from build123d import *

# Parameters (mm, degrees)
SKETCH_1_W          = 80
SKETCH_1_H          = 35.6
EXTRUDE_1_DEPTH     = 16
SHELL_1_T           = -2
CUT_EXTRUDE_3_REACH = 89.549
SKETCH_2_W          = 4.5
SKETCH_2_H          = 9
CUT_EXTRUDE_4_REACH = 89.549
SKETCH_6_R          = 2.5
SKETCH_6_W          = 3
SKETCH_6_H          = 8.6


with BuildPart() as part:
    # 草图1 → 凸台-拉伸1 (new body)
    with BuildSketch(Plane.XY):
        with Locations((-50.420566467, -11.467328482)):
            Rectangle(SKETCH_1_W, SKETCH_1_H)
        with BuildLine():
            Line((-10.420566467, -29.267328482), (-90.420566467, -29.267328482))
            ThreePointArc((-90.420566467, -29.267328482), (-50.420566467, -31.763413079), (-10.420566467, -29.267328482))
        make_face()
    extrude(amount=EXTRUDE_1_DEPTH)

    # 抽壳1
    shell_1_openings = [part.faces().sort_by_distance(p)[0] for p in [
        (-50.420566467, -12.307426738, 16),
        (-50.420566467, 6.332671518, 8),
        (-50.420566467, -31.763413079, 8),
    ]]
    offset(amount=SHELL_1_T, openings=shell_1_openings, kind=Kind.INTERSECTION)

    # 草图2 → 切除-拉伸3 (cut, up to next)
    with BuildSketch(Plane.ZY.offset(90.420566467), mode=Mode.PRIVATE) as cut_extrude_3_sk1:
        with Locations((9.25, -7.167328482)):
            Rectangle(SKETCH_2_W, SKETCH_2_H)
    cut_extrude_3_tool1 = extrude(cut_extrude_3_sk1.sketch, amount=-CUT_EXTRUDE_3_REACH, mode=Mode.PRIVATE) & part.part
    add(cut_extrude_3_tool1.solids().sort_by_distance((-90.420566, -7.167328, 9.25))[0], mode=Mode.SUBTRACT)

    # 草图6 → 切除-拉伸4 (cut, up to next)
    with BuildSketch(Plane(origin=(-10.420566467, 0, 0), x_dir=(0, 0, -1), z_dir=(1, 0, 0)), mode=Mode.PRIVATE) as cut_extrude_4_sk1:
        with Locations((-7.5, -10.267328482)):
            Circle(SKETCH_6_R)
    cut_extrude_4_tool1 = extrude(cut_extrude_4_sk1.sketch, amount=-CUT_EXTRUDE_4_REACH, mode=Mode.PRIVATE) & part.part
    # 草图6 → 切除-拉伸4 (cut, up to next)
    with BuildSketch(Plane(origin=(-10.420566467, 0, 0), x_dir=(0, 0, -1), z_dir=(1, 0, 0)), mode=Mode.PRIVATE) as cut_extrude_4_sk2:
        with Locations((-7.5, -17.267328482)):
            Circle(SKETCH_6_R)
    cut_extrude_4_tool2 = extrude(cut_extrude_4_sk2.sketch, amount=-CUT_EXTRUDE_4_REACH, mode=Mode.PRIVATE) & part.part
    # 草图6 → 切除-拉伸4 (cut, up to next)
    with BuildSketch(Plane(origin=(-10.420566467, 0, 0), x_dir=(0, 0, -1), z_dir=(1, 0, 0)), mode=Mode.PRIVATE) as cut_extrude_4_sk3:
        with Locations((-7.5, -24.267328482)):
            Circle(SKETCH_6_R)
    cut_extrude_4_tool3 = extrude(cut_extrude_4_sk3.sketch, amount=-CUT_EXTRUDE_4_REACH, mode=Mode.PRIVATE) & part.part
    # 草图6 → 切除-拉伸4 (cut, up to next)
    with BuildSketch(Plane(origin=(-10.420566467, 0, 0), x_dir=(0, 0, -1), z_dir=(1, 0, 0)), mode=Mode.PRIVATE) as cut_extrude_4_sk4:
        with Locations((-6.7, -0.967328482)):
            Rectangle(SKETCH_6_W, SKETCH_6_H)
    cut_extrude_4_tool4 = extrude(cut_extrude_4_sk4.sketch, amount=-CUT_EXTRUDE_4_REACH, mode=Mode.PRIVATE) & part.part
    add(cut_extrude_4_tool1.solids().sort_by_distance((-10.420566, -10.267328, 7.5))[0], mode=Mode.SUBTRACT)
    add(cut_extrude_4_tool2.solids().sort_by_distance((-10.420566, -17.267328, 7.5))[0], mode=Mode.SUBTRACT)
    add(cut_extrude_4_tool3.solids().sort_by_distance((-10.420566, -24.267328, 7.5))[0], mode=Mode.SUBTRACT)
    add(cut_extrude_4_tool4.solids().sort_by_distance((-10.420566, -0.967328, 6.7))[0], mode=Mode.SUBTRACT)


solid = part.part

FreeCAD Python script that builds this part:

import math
import FreeCAD as App
import Part
import Sketcher
Q = App.Units.Quantity


def faces_at(feature, points):
    """Names of the faces that lie closest to the given points."""
    faces = feature.Shape.Faces
    near = lambda p: min(range(len(faces)), key=lambda i: faces[i].distToShape(Part.Vertex(*p))[0])
    return sorted({f"Face{near(p) + 1}" for p in points})

doc = App.newDocument("Part")
body = doc.addObject("PartDesign::Body", "Body")

# Sketch on XY plane
sketch1 = doc.addObject("Sketcher::SketchObject", "Sketch")
body.addObject(sketch1)
sketch1.AttachmentSupport = (doc.XY_Plane, [""])
sketch1.MapMode = "FlatFace"
sketch1.addGeometry([
    Part.LineSegment(App.Vector(-90.420566, 6.332672, 0), App.Vector(-90.420566, -29.267328, 0)),
    Part.ArcOfCircle(Part.Circle(App.Vector(-50.420566, 289.986587, 0), App.Vector(0, 0, 1), 321.75), math.radians(-97.141496), math.radians(-82.858504)),
    Part.LineSegment(App.Vector(-10.420566, -29.267328, 0), App.Vector(-10.420566, 6.332672, 0)),
    Part.LineSegment(App.Vector(-10.420566, 6.332672, 0), App.Vector(-90.420566, 6.332672, 0)),
], False)
sketch1.addConstraint([
    Sketcher.Constraint("Coincident", 0, 2, 1, 1),
    Sketcher.Constraint("Coincident", 1, 2, 2, 1),
    Sketcher.Constraint("Coincident", 2, 2, 3, 1),
    Sketcher.Constraint("Coincident", 3, 2, 0, 1),
    Sketcher.Constraint("Vertical", 0),
    Sketcher.Constraint("Vertical", 2),
    Sketcher.Constraint("Horizontal", 3),
    Sketcher.Constraint("Horizontal", 0, 2, 1, 2),
    Sketcher.Constraint("DistanceX", 3, 2, 3, 1, Q("80 mm")),
    Sketcher.Constraint("Radius", 1, Q("321.75 mm")),
    Sketcher.Constraint("DistanceY", 0, 2, 0, 1, Q("35.6 mm")),
    Sketcher.Constraint("DistanceY", 0, 2, -1, 1, Q("29.267328 mm")),
    Sketcher.Constraint("DistanceX", 1, 3, -1, 1, Q("50.420566 mm")),
])
pad1 = doc.addObject("PartDesign::Pad", "Pad")
body.addObject(pad1)
pad1.Profile = sketch1
pad1.Length = 16
doc.recompute()

thickness = doc.addObject("PartDesign::Thickness", "Thickness")
body.addObject(thickness)
thickness.Base = (pad1, faces_at(pad1, [(-50.421, -12.715, 16), (-50.421, 6.333, 8), (-50.421, -31.763, 8)]))
thickness.Value = 2
thickness.Reversed = True
thickness.Join = "Intersection"

# Sketch on YZ plane
sketch2 = doc.addObject("Sketcher::SketchObject", "Sketch001")
body.addObject(sketch2)
sketch2.AttachmentSupport = (doc.YZ_Plane, [""])
sketch2.MapMode = "FlatFace"
sketch2.AttachmentOffset = App.Placement(App.Vector(0, 0, -90.420566), App.Rotation())
sketch2.addGeometry([
    Part.LineSegment(App.Vector(-2.667328, 7, 0), App.Vector(-11.667328, 7, 0)),
    Part.LineSegment(App.Vector(-11.667328, 7, 0), App.Vector(-11.667328, 11.5, 0)),
    Part.LineSegment(App.Vector(-11.667328, 11.5, 0), App.Vector(-2.667328, 11.5, 0)),
    Part.LineSegment(App.Vector(-2.667328, 11.5, 0), App.Vector(-2.667328, 7, 0)),
], False)
sketch2.addConstraint([
    Sketcher.Constraint("Coincident", 0, 2, 1, 1),
    Sketcher.Constraint("Coincident", 1, 2, 2, 1),
    Sketcher.Constraint("Coincident", 2, 2, 3, 1),
    Sketcher.Constraint("Coincident", 3, 2, 0, 1),
    Sketcher.Constraint("Horizontal", 0),
    Sketcher.Constraint("Vertical", 1),
    Sketcher.Constraint("Horizontal", 2),
    Sketcher.Constraint("Vertical", 3),
    Sketcher.Constraint("DistanceX", 0, 2, 0, 1, Q("9 mm")),
    Sketcher.Constraint("DistanceY", 1, 1, 1, 2, Q("4.5 mm")),
    Sketcher.Constraint("DistanceY", -1, 1, 0, 2, Q("7 mm")),
    Sketcher.Constraint("DistanceX", 0, 2, -1, 1, Q("11.667328 mm")),
])
pocket1 = doc.addObject("PartDesign::Pocket", "Pocket")
body.addObject(pocket1)
pocket1.Profile = sketch2
pocket1.Type = "UpToFirst"
pocket1.Reversed = True

# Sketch on YZ plane
sketch3 = doc.addObject("Sketcher::SketchObject", "Sketch002")
body.addObject(sketch3)
sketch3.AttachmentSupport = (doc.YZ_Plane, [""])
sketch3.MapMode = "FlatFace"
sketch3.AttachmentOffset = App.Placement(App.Vector(0, 0, -10.420566), App.Rotation())
sketch3.addGeometry(Part.Circle(App.Vector(-10.267328, 7.5, 0), App.Vector(0, 0, 1), 2.5), False)
sketch3.addConstraint([
    Sketcher.Constraint("Diameter", 0, Q("5 mm")),
    Sketcher.Constraint("DistanceY", -1, 1, 0, 3, Q("7.5 mm")),
    Sketcher.Constraint("DistanceX", 0, 3, -1, 1, Q("10.267328 mm")),
])
pocket2 = doc.addObject("PartDesign::Pocket", "Pocket001")
body.addObject(pocket2)
pocket2.Profile = sketch3
pocket2.Type = "UpToFirst"

# Sketch on YZ plane
sketch4 = doc.addObject("Sketcher::SketchObject", "Sketch003")
body.addObject(sketch4)
sketch4.AttachmentSupport = (doc.YZ_Plane, [""])
sketch4.MapMode = "FlatFace"
sketch4.AttachmentOffset = App.Placement(App.Vector(0, 0, -10.420566), App.Rotation())
sketch4.addGeometry(Part.Circle(App.Vector(-17.267328, 7.5, 0), App.Vector(0, 0, 1), 2.5), False)
sketch4.addConstraint([
    Sketcher.Constraint("Diameter", 0, Q("5 mm")),
    Sketcher.Constraint("DistanceY", -1, 1, 0, 3, Q("7.5 mm")),
    Sketcher.Constraint("DistanceX", 0, 3, -1, 1, Q("17.267328 mm")),
])
pocket3 = doc.addObject("PartDesign::Pocket", "Pocket002")
body.addObject(pocket3)
pocket3.Profile = sketch4
pocket3.Type = "UpToFirst"

# Sketch on YZ plane
sketch5 = doc.addObject("Sketcher::SketchObject", "Sketch004")
body.addObject(sketch5)
sketch5.AttachmentSupport = (doc.YZ_Plane, [""])
sketch5.MapMode = "FlatFace"
sketch5.AttachmentOffset = App.Placement(App.Vector(0, 0, -10.420566), App.Rotation())
sketch5.addGeometry(Part.Circle(App.Vector(-24.267328, 7.5, 0), App.Vector(0, 0, 1), 2.5), False)
sketch5.addConstraint([
    Sketcher.Constraint("Diameter", 0, Q("5 mm")),
    Sketcher.Constraint("DistanceY", -1, 1, 0, 3, Q("7.5 mm")),
    Sketcher.Constraint("DistanceX", 0, 3, -1, 1, Q("24.267328 mm")),
])
pocket4 = doc.addObject("PartDesign::Pocket", "Pocket003")
body.addObject(pocket4)
pocket4.Profile = sketch5
pocket4.Type = "UpToFirst"

# Sketch on YZ plane
sketch6 = doc.addObject("Sketcher::SketchObject", "Sketch005")
body.addObject(sketch6)
sketch6.AttachmentSupport = (doc.YZ_Plane, [""])
sketch6.MapMode = "FlatFace"
sketch6.AttachmentOffset = App.Placement(App.Vector(0, 0, -10.420566), App.Rotation())
sketch6.addGeometry([
    Part.LineSegment(App.Vector(3.332672, 8.2, 0), App.Vector(-5.267328, 8.2, 0)),
    Part.LineSegment(App.Vector(-5.267328, 8.2, 0), App.Vector(-5.267328, 5.2, 0)),
    Part.LineSegment(App.Vector(-5.267328, 5.2, 0), App.Vector(3.332672, 5.2, 0)),
    Part.LineSegment(App.Vector(3.332672, 5.2, 0), App.Vector(3.332672, 8.2, 0)),
], False)
sketch6.addConstraint([
    Sketcher.Constraint("Coincident", 0, 2, 1, 1),
    Sketcher.Constraint("Coincident", 1, 2, 2, 1),
    Sketcher.Constraint("Coincident", 2, 2, 3, 1),
    Sketcher.Constraint("Coincident", 3, 2, 0, 1),
    Sketcher.Constraint("Horizontal", 0),
    Sketcher.Constraint("Vertical", 1),
    Sketcher.Constraint("Horizontal", 2),
    Sketcher.Constraint("Vertical", 3),
    Sketcher.Constraint("DistanceY", 1, 2, 1, 1, Q("3 mm")),
    Sketcher.Constraint("DistanceX", 0, 2, 0, 1, Q("8.6 mm")),
    Sketcher.Constraint("DistanceY", -1, 1, 0, 2, Q("8.2 mm")),
    Sketcher.Constraint("DistanceX", 0, 2, -1, 1, Q("5.267328 mm")),
])
pocket5 = doc.addObject("PartDesign::Pocket", "Pocket004")
body.addObject(pocket5)
pocket5.Profile = sketch6
pocket5.Type = "UpToFirst"

doc.recompute()
